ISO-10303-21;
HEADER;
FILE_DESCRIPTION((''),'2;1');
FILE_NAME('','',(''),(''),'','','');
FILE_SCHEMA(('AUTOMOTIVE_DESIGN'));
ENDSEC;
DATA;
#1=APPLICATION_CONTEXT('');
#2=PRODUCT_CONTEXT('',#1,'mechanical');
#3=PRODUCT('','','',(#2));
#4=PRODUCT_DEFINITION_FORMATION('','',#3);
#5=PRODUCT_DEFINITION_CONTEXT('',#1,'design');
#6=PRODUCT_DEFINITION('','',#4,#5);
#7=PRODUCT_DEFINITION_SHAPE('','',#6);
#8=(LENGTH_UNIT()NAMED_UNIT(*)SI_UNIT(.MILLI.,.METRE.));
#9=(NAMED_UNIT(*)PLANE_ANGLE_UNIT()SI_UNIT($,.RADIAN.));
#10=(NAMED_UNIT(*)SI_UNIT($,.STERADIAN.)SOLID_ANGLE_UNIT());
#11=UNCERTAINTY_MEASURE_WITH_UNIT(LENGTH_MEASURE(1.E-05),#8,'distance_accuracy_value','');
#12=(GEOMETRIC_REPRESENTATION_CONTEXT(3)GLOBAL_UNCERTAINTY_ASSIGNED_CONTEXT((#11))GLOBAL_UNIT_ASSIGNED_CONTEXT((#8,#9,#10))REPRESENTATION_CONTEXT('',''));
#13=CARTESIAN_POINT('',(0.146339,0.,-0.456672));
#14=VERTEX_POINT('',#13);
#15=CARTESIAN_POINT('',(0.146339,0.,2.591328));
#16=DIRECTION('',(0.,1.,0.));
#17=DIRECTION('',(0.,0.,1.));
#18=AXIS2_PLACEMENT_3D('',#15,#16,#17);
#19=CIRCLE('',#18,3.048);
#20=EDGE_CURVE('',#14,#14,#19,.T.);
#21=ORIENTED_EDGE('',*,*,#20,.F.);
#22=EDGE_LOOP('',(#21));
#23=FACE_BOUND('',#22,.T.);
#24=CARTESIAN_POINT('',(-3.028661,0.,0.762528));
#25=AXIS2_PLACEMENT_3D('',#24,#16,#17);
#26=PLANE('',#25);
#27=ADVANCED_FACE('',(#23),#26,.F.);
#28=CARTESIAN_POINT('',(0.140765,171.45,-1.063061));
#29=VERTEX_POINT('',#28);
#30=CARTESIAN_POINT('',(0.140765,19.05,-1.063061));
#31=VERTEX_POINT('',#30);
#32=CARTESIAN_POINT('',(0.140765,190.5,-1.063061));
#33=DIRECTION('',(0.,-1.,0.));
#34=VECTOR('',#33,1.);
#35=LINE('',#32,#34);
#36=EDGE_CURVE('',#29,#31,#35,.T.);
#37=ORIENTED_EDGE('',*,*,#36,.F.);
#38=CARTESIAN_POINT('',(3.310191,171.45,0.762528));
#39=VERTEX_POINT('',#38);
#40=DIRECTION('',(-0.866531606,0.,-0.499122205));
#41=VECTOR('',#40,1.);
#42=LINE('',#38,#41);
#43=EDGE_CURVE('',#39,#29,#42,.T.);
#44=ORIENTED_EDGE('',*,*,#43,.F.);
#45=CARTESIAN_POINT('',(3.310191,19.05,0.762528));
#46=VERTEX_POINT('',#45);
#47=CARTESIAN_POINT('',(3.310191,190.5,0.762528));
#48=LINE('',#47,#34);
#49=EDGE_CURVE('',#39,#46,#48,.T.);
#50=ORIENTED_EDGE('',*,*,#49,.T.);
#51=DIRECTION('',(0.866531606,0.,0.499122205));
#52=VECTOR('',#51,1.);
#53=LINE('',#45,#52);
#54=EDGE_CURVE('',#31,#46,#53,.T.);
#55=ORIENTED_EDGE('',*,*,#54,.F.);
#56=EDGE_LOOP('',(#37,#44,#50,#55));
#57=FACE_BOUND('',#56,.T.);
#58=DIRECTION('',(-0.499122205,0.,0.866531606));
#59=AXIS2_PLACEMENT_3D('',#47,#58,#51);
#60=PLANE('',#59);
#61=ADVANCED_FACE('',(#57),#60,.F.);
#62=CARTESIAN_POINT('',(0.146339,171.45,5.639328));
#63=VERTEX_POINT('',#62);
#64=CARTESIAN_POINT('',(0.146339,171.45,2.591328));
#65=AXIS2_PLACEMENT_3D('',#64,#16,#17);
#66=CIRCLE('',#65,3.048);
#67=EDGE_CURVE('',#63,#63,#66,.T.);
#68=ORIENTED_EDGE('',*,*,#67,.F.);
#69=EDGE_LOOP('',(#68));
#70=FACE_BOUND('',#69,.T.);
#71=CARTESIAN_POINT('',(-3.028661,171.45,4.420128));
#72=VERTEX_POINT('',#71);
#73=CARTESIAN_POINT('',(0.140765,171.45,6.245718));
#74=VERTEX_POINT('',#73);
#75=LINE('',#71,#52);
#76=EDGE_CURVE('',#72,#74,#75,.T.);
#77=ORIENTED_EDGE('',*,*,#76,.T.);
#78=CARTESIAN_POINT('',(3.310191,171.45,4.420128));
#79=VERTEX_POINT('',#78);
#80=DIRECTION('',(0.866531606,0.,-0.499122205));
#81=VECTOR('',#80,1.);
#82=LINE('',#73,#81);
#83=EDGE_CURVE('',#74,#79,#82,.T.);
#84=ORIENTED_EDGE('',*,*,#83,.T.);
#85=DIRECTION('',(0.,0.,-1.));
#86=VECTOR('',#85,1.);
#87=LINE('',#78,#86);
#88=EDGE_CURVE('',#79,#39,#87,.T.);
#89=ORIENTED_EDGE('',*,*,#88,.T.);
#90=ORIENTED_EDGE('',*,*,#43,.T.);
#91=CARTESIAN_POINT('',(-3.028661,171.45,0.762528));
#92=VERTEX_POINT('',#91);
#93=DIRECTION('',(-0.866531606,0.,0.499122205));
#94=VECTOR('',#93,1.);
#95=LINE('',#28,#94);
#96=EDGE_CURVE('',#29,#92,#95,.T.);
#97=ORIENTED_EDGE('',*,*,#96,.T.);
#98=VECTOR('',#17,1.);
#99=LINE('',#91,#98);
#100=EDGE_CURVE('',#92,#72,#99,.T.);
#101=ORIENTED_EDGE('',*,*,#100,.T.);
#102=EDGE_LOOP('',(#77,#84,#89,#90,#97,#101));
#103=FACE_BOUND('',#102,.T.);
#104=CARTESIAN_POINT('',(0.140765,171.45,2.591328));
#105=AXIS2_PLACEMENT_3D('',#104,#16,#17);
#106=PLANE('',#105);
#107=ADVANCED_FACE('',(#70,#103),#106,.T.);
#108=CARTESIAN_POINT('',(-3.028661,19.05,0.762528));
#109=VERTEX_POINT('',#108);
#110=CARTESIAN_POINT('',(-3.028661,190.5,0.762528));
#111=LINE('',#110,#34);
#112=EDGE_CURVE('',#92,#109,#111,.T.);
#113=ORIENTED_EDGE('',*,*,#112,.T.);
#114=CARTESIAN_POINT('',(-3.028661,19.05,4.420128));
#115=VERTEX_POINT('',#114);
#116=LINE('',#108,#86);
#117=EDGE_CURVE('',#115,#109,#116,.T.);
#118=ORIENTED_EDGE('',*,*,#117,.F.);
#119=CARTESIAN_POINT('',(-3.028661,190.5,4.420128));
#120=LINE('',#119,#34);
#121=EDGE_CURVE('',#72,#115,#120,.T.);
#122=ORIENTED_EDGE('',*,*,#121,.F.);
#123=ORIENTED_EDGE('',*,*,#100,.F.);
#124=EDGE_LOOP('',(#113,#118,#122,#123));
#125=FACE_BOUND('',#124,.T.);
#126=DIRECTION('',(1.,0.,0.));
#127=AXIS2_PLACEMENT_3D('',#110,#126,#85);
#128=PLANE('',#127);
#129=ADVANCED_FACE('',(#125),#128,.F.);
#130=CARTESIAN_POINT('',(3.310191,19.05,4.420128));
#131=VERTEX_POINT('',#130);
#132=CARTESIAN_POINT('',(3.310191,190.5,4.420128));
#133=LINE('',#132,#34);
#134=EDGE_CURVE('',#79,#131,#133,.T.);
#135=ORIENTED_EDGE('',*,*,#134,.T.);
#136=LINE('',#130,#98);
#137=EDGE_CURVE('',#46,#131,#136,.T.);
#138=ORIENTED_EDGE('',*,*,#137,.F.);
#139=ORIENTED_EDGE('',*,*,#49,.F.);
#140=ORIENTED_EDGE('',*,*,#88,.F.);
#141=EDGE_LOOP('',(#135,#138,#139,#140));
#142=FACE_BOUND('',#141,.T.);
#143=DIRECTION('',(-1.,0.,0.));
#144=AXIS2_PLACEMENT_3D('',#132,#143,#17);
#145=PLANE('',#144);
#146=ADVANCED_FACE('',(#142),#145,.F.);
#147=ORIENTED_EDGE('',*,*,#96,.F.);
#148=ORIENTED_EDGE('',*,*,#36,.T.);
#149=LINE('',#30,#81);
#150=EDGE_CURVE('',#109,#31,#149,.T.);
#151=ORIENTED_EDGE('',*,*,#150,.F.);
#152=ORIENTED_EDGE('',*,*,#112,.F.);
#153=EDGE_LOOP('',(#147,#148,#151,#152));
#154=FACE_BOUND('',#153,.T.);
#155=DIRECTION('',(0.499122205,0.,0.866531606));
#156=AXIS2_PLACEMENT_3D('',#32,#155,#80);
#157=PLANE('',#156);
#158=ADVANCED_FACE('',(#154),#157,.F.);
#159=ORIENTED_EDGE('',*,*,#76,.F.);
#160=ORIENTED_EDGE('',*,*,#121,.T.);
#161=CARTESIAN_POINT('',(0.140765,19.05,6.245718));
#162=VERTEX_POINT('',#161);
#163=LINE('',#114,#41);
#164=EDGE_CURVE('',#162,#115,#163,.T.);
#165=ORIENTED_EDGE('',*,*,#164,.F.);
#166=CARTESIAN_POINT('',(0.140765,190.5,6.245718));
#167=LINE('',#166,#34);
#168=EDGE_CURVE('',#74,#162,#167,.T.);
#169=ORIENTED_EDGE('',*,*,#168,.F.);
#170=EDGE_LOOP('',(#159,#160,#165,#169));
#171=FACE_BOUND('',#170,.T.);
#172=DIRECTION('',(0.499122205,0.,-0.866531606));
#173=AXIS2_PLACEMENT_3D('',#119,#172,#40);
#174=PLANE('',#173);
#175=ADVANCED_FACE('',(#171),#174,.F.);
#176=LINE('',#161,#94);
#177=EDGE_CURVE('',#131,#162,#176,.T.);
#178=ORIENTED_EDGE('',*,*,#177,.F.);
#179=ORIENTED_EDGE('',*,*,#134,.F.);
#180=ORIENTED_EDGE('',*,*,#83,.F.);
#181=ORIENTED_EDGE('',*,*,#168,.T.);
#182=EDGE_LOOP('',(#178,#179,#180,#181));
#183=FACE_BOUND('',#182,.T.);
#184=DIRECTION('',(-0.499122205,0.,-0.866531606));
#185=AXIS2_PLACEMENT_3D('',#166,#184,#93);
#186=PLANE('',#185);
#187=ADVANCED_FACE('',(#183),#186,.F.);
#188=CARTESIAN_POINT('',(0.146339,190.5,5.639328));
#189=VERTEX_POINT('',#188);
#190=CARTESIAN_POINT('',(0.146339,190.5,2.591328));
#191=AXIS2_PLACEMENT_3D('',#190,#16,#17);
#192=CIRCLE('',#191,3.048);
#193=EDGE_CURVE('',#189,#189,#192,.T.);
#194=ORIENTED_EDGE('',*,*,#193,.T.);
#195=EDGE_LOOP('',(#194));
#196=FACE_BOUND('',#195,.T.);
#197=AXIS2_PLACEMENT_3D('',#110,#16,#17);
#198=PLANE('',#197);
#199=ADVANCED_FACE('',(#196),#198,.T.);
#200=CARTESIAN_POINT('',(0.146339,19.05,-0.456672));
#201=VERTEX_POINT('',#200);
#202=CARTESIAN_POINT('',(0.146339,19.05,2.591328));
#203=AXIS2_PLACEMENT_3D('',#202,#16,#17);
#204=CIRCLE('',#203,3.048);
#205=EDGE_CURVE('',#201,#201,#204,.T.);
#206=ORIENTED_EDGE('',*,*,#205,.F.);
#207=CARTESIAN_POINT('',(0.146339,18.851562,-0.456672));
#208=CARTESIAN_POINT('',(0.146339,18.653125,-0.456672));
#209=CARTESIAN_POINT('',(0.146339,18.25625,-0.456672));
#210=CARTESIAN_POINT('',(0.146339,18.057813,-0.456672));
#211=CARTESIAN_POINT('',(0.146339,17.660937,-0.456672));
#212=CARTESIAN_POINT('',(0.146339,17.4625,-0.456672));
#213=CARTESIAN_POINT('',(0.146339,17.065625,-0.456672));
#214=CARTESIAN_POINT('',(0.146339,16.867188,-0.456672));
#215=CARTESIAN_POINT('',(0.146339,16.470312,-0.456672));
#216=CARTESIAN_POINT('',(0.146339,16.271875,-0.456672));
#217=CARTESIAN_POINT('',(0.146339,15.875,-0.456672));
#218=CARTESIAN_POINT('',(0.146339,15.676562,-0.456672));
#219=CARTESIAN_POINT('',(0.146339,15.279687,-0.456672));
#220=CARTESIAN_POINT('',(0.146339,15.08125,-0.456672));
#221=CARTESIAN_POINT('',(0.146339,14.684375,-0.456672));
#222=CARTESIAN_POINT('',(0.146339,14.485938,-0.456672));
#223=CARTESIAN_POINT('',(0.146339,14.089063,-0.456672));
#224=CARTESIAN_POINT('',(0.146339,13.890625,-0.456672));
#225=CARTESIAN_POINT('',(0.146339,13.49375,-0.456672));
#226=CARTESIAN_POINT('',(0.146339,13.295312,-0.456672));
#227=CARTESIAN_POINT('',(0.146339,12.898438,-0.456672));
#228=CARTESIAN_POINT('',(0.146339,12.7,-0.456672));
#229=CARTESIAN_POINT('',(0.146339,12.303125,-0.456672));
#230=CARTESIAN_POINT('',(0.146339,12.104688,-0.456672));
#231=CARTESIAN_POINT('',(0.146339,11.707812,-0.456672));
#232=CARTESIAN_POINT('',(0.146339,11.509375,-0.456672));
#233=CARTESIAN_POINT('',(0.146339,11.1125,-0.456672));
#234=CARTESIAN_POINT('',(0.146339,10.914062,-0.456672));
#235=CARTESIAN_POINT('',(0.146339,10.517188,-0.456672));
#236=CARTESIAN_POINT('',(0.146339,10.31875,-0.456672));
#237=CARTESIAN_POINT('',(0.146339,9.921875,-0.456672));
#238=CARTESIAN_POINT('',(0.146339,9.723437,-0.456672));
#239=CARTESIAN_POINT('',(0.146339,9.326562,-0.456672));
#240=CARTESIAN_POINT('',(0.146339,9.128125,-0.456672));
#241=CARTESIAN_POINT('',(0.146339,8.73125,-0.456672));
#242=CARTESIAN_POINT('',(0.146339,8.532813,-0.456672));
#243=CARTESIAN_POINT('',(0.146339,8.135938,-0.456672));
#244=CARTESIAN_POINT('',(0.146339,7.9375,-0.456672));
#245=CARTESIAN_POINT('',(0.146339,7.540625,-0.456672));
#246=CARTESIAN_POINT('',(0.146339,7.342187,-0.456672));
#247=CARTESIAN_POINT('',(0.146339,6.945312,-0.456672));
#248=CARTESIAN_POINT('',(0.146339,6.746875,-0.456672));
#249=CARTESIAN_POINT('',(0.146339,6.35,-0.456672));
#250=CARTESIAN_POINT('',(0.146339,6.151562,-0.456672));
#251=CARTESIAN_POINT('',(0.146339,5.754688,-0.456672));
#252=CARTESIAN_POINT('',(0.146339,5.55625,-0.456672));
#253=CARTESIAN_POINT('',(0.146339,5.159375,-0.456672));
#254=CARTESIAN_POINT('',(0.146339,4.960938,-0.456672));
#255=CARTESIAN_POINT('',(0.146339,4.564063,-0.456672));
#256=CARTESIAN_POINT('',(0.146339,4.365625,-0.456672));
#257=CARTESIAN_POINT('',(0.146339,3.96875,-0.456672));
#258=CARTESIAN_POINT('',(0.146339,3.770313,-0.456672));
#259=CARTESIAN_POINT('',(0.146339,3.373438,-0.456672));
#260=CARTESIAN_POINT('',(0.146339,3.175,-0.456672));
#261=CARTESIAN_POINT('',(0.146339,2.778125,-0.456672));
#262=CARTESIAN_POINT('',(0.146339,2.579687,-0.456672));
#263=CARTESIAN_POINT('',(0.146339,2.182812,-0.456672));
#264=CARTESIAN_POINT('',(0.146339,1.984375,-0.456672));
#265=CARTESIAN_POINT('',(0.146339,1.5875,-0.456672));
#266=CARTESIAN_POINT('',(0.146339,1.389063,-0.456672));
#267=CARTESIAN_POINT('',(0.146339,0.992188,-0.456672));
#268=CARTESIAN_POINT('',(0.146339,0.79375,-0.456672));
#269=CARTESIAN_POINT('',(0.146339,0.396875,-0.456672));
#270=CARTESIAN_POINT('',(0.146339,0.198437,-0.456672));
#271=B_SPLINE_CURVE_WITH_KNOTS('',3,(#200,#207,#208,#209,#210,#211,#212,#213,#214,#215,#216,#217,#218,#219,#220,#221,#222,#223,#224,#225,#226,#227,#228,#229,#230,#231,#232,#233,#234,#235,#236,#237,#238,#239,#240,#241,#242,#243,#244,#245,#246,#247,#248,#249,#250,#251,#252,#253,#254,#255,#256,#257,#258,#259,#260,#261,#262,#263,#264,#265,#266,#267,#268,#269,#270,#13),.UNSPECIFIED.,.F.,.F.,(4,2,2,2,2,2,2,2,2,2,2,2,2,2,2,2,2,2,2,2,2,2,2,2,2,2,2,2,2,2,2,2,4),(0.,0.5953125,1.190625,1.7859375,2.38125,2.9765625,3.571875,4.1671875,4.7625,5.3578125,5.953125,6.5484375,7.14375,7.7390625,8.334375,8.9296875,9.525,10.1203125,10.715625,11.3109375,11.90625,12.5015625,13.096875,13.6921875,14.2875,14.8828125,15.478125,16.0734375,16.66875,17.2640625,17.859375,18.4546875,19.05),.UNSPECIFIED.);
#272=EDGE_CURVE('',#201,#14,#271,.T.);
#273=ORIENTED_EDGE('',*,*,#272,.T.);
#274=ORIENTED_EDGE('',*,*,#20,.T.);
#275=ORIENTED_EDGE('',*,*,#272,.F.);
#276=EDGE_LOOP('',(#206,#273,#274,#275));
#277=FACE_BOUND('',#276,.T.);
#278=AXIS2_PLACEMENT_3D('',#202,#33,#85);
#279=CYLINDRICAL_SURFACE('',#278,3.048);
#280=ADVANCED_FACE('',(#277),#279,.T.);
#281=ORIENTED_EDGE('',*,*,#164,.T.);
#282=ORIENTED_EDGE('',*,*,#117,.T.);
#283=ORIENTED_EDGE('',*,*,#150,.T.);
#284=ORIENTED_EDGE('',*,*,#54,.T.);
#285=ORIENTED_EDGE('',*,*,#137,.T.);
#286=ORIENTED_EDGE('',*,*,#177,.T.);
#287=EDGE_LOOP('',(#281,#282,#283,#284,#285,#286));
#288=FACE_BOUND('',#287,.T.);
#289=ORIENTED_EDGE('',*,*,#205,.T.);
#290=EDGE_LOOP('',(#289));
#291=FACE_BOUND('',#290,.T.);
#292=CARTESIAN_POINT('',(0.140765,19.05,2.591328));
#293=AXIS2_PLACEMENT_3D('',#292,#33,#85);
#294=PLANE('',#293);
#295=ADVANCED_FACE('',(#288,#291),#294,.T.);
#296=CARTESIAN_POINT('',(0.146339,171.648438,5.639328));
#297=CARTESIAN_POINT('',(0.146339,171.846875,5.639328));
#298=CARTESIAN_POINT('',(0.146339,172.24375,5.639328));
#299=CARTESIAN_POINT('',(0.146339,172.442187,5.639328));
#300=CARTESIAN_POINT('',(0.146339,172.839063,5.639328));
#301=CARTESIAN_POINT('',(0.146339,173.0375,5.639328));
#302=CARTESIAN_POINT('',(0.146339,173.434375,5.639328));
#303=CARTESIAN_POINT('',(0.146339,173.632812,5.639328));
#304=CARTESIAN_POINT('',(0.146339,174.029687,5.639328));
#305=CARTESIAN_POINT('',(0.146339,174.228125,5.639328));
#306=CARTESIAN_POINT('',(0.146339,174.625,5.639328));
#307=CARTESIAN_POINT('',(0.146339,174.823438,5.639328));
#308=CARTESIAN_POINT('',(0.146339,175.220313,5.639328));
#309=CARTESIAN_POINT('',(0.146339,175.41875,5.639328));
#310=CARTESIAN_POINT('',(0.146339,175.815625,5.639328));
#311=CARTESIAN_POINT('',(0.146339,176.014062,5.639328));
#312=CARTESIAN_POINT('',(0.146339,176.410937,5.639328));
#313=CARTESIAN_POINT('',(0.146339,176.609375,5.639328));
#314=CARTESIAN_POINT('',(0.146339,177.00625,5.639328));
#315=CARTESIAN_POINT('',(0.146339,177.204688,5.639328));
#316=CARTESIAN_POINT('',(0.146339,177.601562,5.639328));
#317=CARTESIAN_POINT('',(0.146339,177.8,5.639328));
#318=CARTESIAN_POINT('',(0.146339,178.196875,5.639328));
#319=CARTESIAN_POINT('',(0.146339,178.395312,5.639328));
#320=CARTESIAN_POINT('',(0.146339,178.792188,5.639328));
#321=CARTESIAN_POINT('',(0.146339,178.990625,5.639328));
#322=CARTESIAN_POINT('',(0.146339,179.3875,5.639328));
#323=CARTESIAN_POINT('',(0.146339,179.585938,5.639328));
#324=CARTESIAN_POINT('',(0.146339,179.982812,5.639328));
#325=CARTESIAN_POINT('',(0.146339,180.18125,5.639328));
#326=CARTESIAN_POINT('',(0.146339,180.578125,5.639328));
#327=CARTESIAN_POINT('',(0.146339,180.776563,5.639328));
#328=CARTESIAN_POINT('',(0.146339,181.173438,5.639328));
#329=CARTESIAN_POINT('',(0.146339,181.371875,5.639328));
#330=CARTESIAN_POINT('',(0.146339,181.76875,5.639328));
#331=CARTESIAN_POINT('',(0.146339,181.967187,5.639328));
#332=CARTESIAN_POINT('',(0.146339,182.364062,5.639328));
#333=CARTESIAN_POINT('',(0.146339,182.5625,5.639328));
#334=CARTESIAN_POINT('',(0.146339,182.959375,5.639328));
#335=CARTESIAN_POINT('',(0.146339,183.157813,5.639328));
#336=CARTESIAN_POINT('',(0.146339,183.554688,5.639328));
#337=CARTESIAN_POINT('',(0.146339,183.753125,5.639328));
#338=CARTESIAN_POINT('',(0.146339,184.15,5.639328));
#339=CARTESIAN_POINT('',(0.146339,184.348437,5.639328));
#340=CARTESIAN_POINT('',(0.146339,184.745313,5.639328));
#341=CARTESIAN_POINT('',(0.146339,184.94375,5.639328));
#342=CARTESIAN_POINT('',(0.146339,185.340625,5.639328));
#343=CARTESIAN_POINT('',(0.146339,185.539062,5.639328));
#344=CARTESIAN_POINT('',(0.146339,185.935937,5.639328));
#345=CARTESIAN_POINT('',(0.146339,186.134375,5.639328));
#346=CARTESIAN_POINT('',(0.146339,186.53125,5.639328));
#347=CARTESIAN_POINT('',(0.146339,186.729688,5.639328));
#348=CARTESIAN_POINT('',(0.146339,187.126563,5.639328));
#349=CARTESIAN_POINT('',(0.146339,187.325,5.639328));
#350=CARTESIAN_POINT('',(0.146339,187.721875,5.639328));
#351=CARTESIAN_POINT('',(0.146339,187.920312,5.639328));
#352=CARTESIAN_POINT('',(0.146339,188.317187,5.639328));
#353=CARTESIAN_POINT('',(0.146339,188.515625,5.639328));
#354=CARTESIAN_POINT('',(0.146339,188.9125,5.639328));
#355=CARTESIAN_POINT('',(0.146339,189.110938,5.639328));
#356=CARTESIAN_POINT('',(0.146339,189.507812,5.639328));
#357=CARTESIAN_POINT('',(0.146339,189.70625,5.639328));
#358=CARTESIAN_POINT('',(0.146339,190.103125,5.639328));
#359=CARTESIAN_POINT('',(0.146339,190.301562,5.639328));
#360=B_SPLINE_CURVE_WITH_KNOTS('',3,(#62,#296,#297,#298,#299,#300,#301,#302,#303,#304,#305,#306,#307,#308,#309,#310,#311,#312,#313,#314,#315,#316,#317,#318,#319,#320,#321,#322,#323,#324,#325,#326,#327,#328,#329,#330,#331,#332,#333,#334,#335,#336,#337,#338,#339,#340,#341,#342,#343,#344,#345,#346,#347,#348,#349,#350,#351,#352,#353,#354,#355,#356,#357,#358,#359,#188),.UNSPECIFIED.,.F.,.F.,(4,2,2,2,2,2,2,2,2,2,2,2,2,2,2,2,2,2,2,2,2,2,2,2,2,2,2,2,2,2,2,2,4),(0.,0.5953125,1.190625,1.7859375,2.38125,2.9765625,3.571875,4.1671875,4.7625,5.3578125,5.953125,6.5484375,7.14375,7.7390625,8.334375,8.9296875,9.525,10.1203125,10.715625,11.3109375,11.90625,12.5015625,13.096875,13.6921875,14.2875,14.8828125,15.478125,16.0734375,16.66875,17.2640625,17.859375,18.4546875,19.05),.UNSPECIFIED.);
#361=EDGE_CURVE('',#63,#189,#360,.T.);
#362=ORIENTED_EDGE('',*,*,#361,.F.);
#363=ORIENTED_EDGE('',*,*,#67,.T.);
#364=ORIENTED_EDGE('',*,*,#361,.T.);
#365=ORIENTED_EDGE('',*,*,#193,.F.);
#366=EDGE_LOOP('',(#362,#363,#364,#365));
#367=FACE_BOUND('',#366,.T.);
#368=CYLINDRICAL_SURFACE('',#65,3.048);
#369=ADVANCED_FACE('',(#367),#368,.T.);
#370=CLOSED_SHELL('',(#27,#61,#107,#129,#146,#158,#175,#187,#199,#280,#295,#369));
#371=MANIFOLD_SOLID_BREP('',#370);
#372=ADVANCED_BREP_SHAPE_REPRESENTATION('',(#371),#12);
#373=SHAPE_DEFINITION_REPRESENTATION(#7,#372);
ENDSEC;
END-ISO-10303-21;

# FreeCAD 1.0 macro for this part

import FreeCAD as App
import Part
import Sketcher
Q = App.Units.Quantity

doc = App.newDocument("Part")
params = doc.addObject("Spreadsheet::Sheet", "Params")
for row, (alias, value) in enumerate([
    ("sketch1_height", "0.144 in"),
    ("sketch1_length", "0.144 in"),
    ("pad1_length", "7.5 in"),
    ("sketch2_diameter", "0.24 in"),
    ("pocket1_length", "0.75 in"),
], start=1):
    params.set(f"A{row}", alias)
    params.set(f"B{row}", "=" + value)
    params.setAlias(f"B{row}", alias)

body = doc.addObject("PartDesign::Body", "Body")

# Sketch on XZ plane
sketch1 = body.newObject("Sketcher::SketchObject", "Sketch")
sketch1.AttachmentSupport = (doc.getObject("XZ_Plane"), [""])
sketch1.MapMode = "FlatFace"
sketch1.addGeometry([
    Part.LineSegment(App.Vector(3.310191, 4.420128, 0), App.Vector(3.310191, 0.762528, 0)),  # 0
    Part.LineSegment(App.Vector(3.310191, 0.762528, 0), App.Vector(0.140765, -1.063061, 0)),  # 1
    Part.LineSegment(App.Vector(0.140765, -1.063061, 0), App.Vector(-3.028661, 0.762528, 0)),  # 2
    Part.LineSegment(App.Vector(-3.028661, 0.762528, 0), App.Vector(-3.028661, 4.420128, 0)),  # 3
    Part.LineSegment(App.Vector(-3.028661, 4.420128, 0), App.Vector(0.140765, 6.245718, 0)),  # 4
    Part.LineSegment(App.Vector(0.140765, 6.245718, 0), App.Vector(3.310191, 4.420128, 0)),  # 5
], False)
sketch1.addConstraint([
    Sketcher.Constraint("Coincident", 0, 2, 1, 1),
    Sketcher.Constraint("Coincident", 1, 2, 2, 1),
    Sketcher.Constraint("Coincident", 2, 2, 3, 1),
    Sketcher.Constraint("Coincident", 3, 2, 4, 1),
    Sketcher.Constraint("Coincident", 4, 2, 5, 1),
    Sketcher.Constraint("Coincident", 5, 2, 0, 1),
    Sketcher.Constraint("Vertical", 0),
    Sketcher.Constraint("Vertical", 3),
    Sketcher.Constraint("Parallel", 1, 4),
    Sketcher.Constraint("Parallel", 2, 5),
    Sketcher.Constraint("Horizontal", 0, 2, 2, 2),
    Sketcher.Constraint("Horizontal", 3, 2, 5, 2),
    Sketcher.Constraint("Vertical", 1, 2, 4, 2),
    Sketcher.Constraint("DistanceY", 0, 2, 0, 1, Q("0.144 in")),
    Sketcher.Constraint("Distance", 1, Q("0.144 in")),
    Sketcher.Constraint("DistanceX", -1, 1, 0, 2, 3.310191),
    Sketcher.Constraint("DistanceY", -1, 1, 0, 2, 0.762528),
    Sketcher.Constraint("DistanceY", 1, 2, -1, 1, 1.063061),
])
sketch1.setExpression("Constraints[13]", "Params.sketch1_height")
sketch1.setExpression("Constraints[14]", "Params.sketch1_length")
pad1 = body.newObject("PartDesign::Pad", "Pad")
pad1.Profile = sketch1
pad1.setExpression("Length", "Params.pad1_length")
pad1.Reversed = True

# Sketch on XZ plane
sketch2 = body.newObject("Sketcher::SketchObject", "Sketch001")
sketch2.AttachmentSupport = (doc.getObject("XZ_Plane"), [""])
sketch2.MapMode = "FlatFace"
sketch2.AttachmentOffset = App.Placement(App.Vector(0, 0, -7.5 * 25.4), App.Rotation())
sketch2.addGeometry([
    Part.LineSegment(App.Vector(-23.104, -21.138, 0), App.Vector(-23.104, 26.321, 0)),  # 0
    Part.LineSegment(App.Vector(-23.104, 26.321, 0), App.Vector(23.385, 26.321, 0)),  # 1
    Part.LineSegment(App.Vector(23.385, 26.321, 0), App.Vector(23.385, -21.138, 0)),  # 2
    Part.LineSegment(App.Vector(23.385, -21.138, 0), App.Vector(-23.104, -21.138, 0)),  # 3
    Part.Circle(App.Vector(0.146339, 2.591328, 0), App.Vector(0, 0, 1), 3.048),  # 4
], False)
sketch2.addConstraint([
    Sketcher.Constraint("Coincident", 0, 2, 1, 1),
    Sketcher.Constraint("Coincident", 1, 2, 2, 1),
    Sketcher.Constraint("Coincident", 2, 2, 3, 1),
    Sketcher.Constraint("Coincident", 3, 2, 0, 1),
    Sketcher.Constraint("Vertical", 0),
    Sketcher.Constraint("Horizontal", 1),
    Sketcher.Constraint("Vertical", 2),
    Sketcher.Constraint("Horizontal", 3),
    Sketcher.Constraint("Diameter", 4, Q("0.24 in")),
    Sketcher.Constraint("DistanceX", 1, 1, 1, 2, 46.489),
    Sketcher.Constraint("DistanceY", 0, 1, 0, 2, 47.459),
    Sketcher.Constraint("DistanceX", 0, 2, -1, 1, 23.104),
    Sketcher.Constraint("DistanceY", -1, 1, 0, 2, 26.321),
    Sketcher.Constraint("DistanceX", -1, 1, 4, 3, 0.146339),
    Sketcher.Constraint("DistanceY", -1, 1, 4, 3, 2.591328),
])
sketch2.setExpression("Constraints[8]", "Params.sketch2_diameter")
pocket1 = body.newObject("PartDesign::Pocket", "Pocket")
pocket1.Profile = sketch2
pocket1.setExpression("Length", "Params.pocket1_length")
pocket1.Reversed = True
doc.recompute()

datumplane = body.newObject("PartDesign::Plane", "DatumPlane")
datumplane.AttachmentSupport = (doc.getObject("XZ_Plane"), [""])
datumplane.MapMode = "FlatFace"
datumplane.AttachmentOffset = App.Placement(App.Vector(0, 0, -3.75 * 25.4), App.Rotation())
mirrored = body.newObject("PartDesign::Mirrored", "Mirrored")
mirrored.Originals = [pocket1]
mirrored.MirrorPlane = (datumplane, [""])
body.Tip = mirrored

doc.recompute()
